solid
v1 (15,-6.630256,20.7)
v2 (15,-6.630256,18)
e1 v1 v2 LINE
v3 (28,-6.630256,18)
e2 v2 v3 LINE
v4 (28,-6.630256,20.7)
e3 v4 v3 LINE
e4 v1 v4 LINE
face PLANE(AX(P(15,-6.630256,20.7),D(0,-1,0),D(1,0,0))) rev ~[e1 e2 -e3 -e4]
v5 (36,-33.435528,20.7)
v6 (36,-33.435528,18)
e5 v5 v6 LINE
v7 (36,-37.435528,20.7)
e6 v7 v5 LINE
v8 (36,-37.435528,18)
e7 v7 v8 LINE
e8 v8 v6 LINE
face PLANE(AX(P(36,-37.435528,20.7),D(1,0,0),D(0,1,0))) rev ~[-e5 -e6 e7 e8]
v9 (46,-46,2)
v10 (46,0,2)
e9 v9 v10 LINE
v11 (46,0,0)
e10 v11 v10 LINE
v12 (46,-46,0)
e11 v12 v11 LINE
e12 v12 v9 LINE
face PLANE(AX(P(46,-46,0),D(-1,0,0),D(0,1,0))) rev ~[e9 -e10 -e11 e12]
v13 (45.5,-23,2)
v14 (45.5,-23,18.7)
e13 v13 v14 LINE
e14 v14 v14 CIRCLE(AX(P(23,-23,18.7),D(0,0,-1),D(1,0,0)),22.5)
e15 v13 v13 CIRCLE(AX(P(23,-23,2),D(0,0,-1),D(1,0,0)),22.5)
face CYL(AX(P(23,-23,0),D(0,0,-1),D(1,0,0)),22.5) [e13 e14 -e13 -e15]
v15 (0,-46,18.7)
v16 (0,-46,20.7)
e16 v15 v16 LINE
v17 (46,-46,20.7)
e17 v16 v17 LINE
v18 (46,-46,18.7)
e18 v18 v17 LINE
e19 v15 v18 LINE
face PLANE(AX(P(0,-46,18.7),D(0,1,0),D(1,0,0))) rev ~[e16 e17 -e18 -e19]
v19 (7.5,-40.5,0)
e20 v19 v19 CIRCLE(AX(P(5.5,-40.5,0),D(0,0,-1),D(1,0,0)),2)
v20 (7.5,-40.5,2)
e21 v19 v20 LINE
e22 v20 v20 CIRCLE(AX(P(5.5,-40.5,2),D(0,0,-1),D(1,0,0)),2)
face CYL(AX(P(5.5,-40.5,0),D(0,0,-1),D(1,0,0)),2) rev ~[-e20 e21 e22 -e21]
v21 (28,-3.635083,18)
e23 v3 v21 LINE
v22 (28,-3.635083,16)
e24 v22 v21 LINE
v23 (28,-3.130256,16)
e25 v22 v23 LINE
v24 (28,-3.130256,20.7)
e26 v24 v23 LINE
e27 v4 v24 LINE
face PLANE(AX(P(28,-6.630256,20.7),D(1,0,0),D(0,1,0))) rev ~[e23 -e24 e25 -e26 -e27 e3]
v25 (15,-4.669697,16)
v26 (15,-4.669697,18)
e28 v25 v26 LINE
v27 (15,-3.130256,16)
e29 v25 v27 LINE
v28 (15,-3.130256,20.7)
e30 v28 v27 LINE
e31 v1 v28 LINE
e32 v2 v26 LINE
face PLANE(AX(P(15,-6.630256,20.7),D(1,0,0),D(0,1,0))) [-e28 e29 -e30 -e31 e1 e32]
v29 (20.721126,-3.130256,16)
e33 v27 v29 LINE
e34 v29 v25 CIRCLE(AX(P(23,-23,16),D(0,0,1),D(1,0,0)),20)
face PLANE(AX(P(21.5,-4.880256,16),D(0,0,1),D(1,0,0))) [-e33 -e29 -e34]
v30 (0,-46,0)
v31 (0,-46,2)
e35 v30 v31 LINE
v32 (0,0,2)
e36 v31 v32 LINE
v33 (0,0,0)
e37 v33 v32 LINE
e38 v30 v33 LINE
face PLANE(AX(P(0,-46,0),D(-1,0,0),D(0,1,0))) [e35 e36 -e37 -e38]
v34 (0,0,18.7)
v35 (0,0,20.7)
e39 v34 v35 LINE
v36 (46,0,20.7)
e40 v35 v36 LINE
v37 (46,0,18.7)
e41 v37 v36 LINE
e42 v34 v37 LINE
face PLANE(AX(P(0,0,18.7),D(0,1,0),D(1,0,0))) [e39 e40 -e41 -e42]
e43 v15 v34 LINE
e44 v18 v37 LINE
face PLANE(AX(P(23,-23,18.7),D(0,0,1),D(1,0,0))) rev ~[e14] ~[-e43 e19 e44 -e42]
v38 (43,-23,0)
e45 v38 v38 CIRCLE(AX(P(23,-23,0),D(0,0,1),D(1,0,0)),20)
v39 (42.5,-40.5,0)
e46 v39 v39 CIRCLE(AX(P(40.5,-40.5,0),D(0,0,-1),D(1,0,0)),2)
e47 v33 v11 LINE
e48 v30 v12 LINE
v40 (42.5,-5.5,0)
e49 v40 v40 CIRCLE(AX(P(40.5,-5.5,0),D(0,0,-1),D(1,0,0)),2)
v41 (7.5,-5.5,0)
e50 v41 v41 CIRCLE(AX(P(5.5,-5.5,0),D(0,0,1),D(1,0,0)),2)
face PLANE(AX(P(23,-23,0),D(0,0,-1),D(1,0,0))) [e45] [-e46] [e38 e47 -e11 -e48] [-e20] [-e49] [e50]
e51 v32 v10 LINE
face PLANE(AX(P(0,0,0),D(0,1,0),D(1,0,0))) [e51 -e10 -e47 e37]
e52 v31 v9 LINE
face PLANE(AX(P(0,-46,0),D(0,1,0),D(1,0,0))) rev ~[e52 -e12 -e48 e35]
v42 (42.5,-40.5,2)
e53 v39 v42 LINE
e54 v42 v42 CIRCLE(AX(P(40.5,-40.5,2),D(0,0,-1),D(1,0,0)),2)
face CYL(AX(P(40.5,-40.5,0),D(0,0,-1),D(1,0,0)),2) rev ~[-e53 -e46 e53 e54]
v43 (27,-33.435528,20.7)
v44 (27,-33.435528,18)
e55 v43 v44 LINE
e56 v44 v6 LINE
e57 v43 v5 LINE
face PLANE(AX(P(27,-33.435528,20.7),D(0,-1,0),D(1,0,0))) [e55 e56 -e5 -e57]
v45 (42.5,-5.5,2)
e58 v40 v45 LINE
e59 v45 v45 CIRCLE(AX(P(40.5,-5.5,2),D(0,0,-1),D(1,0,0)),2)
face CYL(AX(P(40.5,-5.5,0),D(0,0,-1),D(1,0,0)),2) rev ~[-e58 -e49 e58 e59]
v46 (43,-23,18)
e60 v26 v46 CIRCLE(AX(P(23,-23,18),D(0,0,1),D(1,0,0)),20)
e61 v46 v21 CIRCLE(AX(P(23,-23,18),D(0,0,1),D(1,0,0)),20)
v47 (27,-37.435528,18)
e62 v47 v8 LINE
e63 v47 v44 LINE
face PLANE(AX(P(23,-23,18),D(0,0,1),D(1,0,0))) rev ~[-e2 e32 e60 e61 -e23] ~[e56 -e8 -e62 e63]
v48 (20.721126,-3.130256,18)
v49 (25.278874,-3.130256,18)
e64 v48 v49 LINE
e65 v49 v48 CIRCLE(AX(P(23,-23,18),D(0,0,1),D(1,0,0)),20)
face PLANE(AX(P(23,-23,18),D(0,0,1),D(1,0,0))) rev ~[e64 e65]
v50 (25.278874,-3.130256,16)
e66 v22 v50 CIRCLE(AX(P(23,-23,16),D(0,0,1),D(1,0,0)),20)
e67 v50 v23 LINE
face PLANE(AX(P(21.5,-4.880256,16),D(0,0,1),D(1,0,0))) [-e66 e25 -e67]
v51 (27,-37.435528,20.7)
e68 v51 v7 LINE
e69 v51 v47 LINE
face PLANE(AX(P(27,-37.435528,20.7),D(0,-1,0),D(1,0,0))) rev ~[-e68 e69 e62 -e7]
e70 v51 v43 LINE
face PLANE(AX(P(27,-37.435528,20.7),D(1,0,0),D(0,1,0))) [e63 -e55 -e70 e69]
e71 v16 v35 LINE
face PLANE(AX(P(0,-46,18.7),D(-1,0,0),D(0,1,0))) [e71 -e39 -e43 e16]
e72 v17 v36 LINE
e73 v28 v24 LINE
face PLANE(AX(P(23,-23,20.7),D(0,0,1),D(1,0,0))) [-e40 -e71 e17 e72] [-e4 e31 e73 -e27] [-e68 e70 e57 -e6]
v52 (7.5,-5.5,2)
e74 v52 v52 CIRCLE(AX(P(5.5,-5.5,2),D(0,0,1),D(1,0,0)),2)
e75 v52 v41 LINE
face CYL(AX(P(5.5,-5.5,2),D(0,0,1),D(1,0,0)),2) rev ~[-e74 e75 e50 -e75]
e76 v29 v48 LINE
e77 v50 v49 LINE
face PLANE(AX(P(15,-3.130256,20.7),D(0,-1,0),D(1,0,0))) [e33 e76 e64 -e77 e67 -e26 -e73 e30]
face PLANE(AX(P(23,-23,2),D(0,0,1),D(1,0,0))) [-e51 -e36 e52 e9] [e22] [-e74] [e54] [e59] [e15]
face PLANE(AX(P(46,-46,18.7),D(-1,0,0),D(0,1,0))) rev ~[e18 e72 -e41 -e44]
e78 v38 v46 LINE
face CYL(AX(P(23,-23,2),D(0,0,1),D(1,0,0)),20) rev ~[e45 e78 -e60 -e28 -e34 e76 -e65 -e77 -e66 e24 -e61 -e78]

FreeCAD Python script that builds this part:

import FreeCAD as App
import Part
import Sketcher
from FreeCAD import Vector
Q = App.Units.Quantity


def add_polygon(sketch, points):
    """Adds a closed chain of lines whose ends are joined by coincident constraints."""
    first, n = sketch.GeometryCount, len(points)
    for a, b in zip(points, points[1:] + points[:1]):
        sketch.addGeometry(Part.LineSegment(App.Vector(*a, 0), App.Vector(*b, 0)), False)
    for i in range(n):
        sketch.addConstraint(Sketcher.Constraint("Coincident", first + i, 2, first + (i + 1) % n, 1))

doc = App.newDocument("Part")
params = doc.addObject("Spreadsheet::Sheet", "Params")
for row, (alias, value) in enumerate([
    ("sketch1_width", "46 mm"),
    ("pad1_length", "2 mm"),
    ("sketch2_diameter", "4 mm"),
    ("pocket1_length", "25.4 mm"),
    ("sketch3_diameter", "45 mm"),
    ("pad2_length", "20 mm"),
    ("sketch4_diameter", "40 mm"),
    ("pocket2_length", "32 mm"),
    ("sketch5_width", "46 mm"),
    ("pad3_length", "2 mm"),
    ("sketch6_width", "13 mm"),
    ("sketch6_height", "3.5 mm"),
    ("pocket3_length", "4.7 mm"),
    ("sketch7_width", "9 mm"),
    ("sketch7_height", "4 mm"),
    ("pocket4_length", "2.7 mm"),
    ("sketch8_diameter", "4 mm"),
    ("pocket5_length", "2 mm"),
    ("sketch9_diameter", "4 mm"),
    ("pocket6_length", "2 mm"),
    ("sketch10_diameter", "4 mm"),
    ("pocket7_length", "2 mm"),
], start=1):
    params.set(f"A{row}", alias)
    params.set(f"B{row}", "=" + value)
    params.setAlias(f"B{row}", alias)

body = doc.addObject("PartDesign::Body", "Body")

# Sketch on XY plane
sketch1 = body.newObject("Sketcher::SketchObject", "Sketch")
sketch1.AttachmentSupport = (doc.getObject("XY_Plane"), [""])
sketch1.MapMode = "FlatFace"
add_polygon(sketch1, [(0, 0), (0, -46), (46, -46), (46, 0)])  # lines 0-3
sketch1.addConstraint([
    Sketcher.Constraint("Vertical", 0),
    Sketcher.Constraint("Horizontal", 1),
    Sketcher.Constraint("Vertical", 2),
    Sketcher.Constraint("Horizontal", 3),
    Sketcher.Constraint("Coincident", 3, 2, -1, 1),
    Sketcher.Constraint("Equal", 3, 0),
    Sketcher.Constraint("DistanceX", 1, 1, 1, 2, Q("46 mm")),
])
sketch1.setExpression("Constraints[10]", "Params.sketch1_width")
pad1 = body.newObject("PartDesign::Pad", "Pad")
pad1.Profile = sketch1
pad1.setExpression("Length", "Params.pad1_length")

# Sketch on XY plane
sketch2 = body.newObject("Sketcher::SketchObject", "Sketch001")
sketch2.AttachmentSupport = (doc.getObject("XY_Plane"), [""])
sketch2.MapMode = "FlatFace"
sketch2.AttachmentOffset = App.Placement(Vector(0, 0, 2), App.Rotation())
sketch2.addGeometry(Part.Circle(Vector(5.5, -5.5, 0), Vector(0, 0, 1), 2), False)
sketch2.addConstraint([
    Sketcher.Constraint("Diameter", 0, Q("4 mm")),
    Sketcher.Constraint("DistanceX", -1, 1, 0, 3, Q("5.5 mm")),
    Sketcher.Constraint("DistanceY", 0, 3, -1, 1, Q("5.5 mm")),
])
sketch2.setExpression("Constraints[0]", "Params.sketch2_diameter")
pocket1 = body.newObject("PartDesign::Pocket", "Pocket")
pocket1.Profile = sketch2
pocket1.setExpression("Length", "Params.pocket1_length")

# Sketch on XY plane
sketch3 = body.newObject("Sketcher::SketchObject", "Sketch002")
sketch3.AttachmentSupport = (doc.getObject("XY_Plane"), [""])
sketch3.MapMode = "FlatFace"
sketch3.addGeometry(Part.Circle(Vector(23, -23, 0), Vector(0, 0, 1), 22), False)
sketch3.addConstraint([
    Sketcher.Constraint("Diameter", 0, Q("45 mm")),
    Sketcher.Constraint("DistanceX", -1, 1, 0, 3, Q("23 mm")),
    Sketcher.Constraint("DistanceY", 0, 3, -1, 1, Q("23 mm")),
])
sketch3.setExpression("Constraints[0]", "Params.sketch3_diameter")
pad2 = body.newObject("PartDesign::Pad", "Pad001")
pad2.Profile = sketch3
pad2.setExpression("Length", "Params.pad2_length")

# Sketch on XY plane
sketch4 = body.newObject("Sketcher::SketchObject", "Sketch003")
sketch4.AttachmentSupport = (doc.getObject("XY_Plane"), [""])
sketch4.MapMode = "FlatFace"
sketch4.AttachmentOffset = App.Placement(Vector(0, 0, 2), App.Rotation())
sketch4.addGeometry(Part.Circle(Vector(23, -23, 0), Vector(0, 0, 1), 20), False)
sketch4.addConstraint([
    Sketcher.Constraint("Diameter", 0, Q("40 mm")),
    Sketcher.Constraint("DistanceX", -1, 1, 0, 3, Q("23 mm")),
    Sketcher.Constraint("DistanceY", 0, 3, -1, 1, Q("23 mm")),
])
sketch4.setExpression("Constraints[0]", "Params.sketch4_diameter")
pocket2 = body.newObject("PartDesign::Pocket", "Pocket001")
pocket2.Profile = sketch4
pocket2.setExpression("Length", "Params.pocket2_length")
pocket2.Midplane = True

# Sketch on XY plane
sketch5 = body.newObject("Sketcher::SketchObject", "Sketch004")
sketch5.AttachmentSupport = (doc.getObject("XY_Plane"), [""])
sketch5.MapMode = "FlatFace"
sketch5.AttachmentOffset = App.Placement(Vector(0, 0, 18.7), App.Rotation())
add_polygon(sketch5, [(0, 0), (0, -46), (46, -46), (46, 0)])  # lines 0-3
sketch5.addConstraint([
    Sketcher.Constraint("Vertical", 0),
    Sketcher.Constraint("Horizontal", 1),
    Sketcher.Constraint("Vertical", 2),
    Sketcher.Constraint("Horizontal", 3),
    Sketcher.Constraint("Coincident", 3, 2, -1, 1),
    Sketcher.Constraint("Equal", 3, 0),
    Sketcher.Constraint("DistanceX", 1, 1, 1, 2, Q("46 mm")),
])
sketch5.setExpression("Constraints[10]", "Params.sketch5_width")
pad3 = body.newObject("PartDesign::Pad", "Pad002")
pad3.Profile = sketch5
pad3.setExpression("Length", "Params.pad3_length")

# Sketch on XY plane
sketch6 = body.newObject("Sketcher::SketchObject", "Sketch005")
sketch6.AttachmentSupport = (doc.getObject("XY_Plane"), [""])
sketch6.MapMode = "FlatFace"
sketch6.AttachmentOffset = App.Placement(Vector(0, 0, 20.7), App.Rotation())
add_polygon(sketch6, [(15, -3.1), (15, -6.6), (28, -6.6), (28, -3.1)])  # lines 0-3
sketch6.addConstraint([
    Sketcher.Constraint("Vertical", 0),
    Sketcher.Constraint("Horizontal", 1),
    Sketcher.Constraint("Vertical", 2),
    Sketcher.Constraint("Horizontal", 3),
    Sketcher.Constraint("DistanceX", 1, 1, 1, 2, Q("13 mm")),
    Sketcher.Constraint("DistanceY", 0, 2, 0, 1, Q("3.5 mm")),
    Sketcher.Constraint("DistanceX", -1, 1, 0, 2, Q("15 mm")),
    Sketcher.Constraint("DistanceY", 0, 2, -1, 1, Q("6.630256 mm")),
])
sketch6.setExpression("Constraints[8]", "Params.sketch6_width")
sketch6.setExpression("Constraints[9]", "Params.sketch6_height")
pocket3 = body.newObject("PartDesign::Pocket", "Pocket002")
pocket3.Profile = sketch6
pocket3.setExpression("Length", "Params.pocket3_length")

# Sketch on XY plane
sketch7 = body.newObject("Sketcher::SketchObject", "Sketch006")
sketch7.AttachmentSupport = (doc.getObject("XY_Plane"), [""])
sketch7.MapMode = "FlatFace"
sketch7.AttachmentOffset = App.Placement(Vector(0, 0, 20.7), App.Rotation())
add_polygon(sketch7, [(27, -33.4), (27, -37.4), (36, -37.4), (36, -33.4)])  # lines 0-3
sketch7.addConstraint([
    Sketcher.Constraint("Vertical", 0),
    Sketcher.Constraint("Horizontal", 1),
    Sketcher.Constraint("Vertical", 2),
    Sketcher.Constraint("Horizontal", 3),
    Sketcher.Constraint("DistanceX", 1, 1, 1, 2, Q("9 mm")),
    Sketcher.Constraint("DistanceY", 0, 2, 0, 1, Q("4 mm")),
    Sketcher.Constraint("DistanceX", -1, 1, 0, 2, Q("27 mm")),
    Sketcher.Constraint("DistanceY", 0, 2, -1, 1, Q("37.435528 mm")),
])
sketch7.setExpression("Constraints[8]", "Params.sketch7_width")
sketch7.setExpression("Constraints[9]", "Params.sketch7_height")
pocket4 = body.newObject("PartDesign::Pocket", "Pocket003")
pocket4.Profile = sketch7
pocket4.setExpression("Length", "Params.pocket4_length")

# Sketch on XY plane
sketch8 = body.newObject("Sketcher::SketchObject", "Sketch007")
sketch8.AttachmentSupport = (doc.getObject("XY_Plane"), [""])
sketch8.MapMode = "FlatFace"
sketch8.addGeometry(Part.Circle(Vector(40.5, -40.5, 0), Vector(0, 0, 1), 2), False)
sketch8.addConstraint([
    Sketcher.Constraint("Diameter", 0, Q("4 mm")),
    Sketcher.Constraint("DistanceX", -1, 1, 0, 3, Q("40.5 mm")),
    Sketcher.Constraint("DistanceY", 0, 3, -1, 1, Q("40.5 mm")),
])
sketch8.setExpression("Constraints[0]", "Params.sketch8_diameter")
pocket5 = body.newObject("PartDesign::Pocket", "Pocket004")
pocket5.Profile = sketch8
pocket5.setExpression("Length", "Params.pocket5_length")
pocket5.Reversed = True

# Sketch on XY plane
sketch9 = body.newObject("Sketcher::SketchObject", "Sketch008")
sketch9.AttachmentSupport = (doc.getObject("XY_Plane"), [""])
sketch9.MapMode = "FlatFace"
sketch9.addGeometry(Part.Circle(Vector(40.5, -5.5, 0), Vector(0, 0, 1), 2), False)
sketch9.addConstraint([
    Sketcher.Constraint("Diameter", 0, Q("4 mm")),
    Sketcher.Constraint("DistanceX", -1, 1, 0, 3, Q("40.5 mm")),
    Sketcher.Constraint("DistanceY", 0, 3, -1, 1, Q("5.5 mm")),
])
sketch9.setExpression("Constraints[0]", "Params.sketch9_diameter")
pocket6 = body.newObject("PartDesign::Pocket", "Pocket005")
pocket6.Profile = sketch9
pocket6.setExpression("Length", "Params.pocket6_length")
pocket6.Reversed = True

# Sketch on XY plane
sketch10 = body.newObject("Sketcher::SketchObject", "Sketch009")
sketch10.AttachmentSupport = (doc.getObject("XY_Plane"), [""])
sketch10.MapMode = "FlatFace"
sketch10.addGeometry(Part.Circle(Vector(5.5, -40.5, 0), Vector(0, 0, 1), 2), False)
sketch10.addConstraint([
    Sketcher.Constraint("Diameter", 0, Q("4 mm")),
    Sketcher.Constraint("DistanceX", -1, 1, 0, 3, Q("5.5 mm")),
    Sketcher.Constraint("DistanceY", 0, 3, -1, 1, Q("40.5 mm")),
])
sketch10.setExpression("Constraints[0]", "Params.sketch10_diameter")
pocket7 = body.newObject("PartDesign::Pocket", "Pocket006")
pocket7.Profile = sketch10
pocket7.setExpression("Length", "Params.pocket7_length")
pocket7.Reversed = True

doc.recompute()
